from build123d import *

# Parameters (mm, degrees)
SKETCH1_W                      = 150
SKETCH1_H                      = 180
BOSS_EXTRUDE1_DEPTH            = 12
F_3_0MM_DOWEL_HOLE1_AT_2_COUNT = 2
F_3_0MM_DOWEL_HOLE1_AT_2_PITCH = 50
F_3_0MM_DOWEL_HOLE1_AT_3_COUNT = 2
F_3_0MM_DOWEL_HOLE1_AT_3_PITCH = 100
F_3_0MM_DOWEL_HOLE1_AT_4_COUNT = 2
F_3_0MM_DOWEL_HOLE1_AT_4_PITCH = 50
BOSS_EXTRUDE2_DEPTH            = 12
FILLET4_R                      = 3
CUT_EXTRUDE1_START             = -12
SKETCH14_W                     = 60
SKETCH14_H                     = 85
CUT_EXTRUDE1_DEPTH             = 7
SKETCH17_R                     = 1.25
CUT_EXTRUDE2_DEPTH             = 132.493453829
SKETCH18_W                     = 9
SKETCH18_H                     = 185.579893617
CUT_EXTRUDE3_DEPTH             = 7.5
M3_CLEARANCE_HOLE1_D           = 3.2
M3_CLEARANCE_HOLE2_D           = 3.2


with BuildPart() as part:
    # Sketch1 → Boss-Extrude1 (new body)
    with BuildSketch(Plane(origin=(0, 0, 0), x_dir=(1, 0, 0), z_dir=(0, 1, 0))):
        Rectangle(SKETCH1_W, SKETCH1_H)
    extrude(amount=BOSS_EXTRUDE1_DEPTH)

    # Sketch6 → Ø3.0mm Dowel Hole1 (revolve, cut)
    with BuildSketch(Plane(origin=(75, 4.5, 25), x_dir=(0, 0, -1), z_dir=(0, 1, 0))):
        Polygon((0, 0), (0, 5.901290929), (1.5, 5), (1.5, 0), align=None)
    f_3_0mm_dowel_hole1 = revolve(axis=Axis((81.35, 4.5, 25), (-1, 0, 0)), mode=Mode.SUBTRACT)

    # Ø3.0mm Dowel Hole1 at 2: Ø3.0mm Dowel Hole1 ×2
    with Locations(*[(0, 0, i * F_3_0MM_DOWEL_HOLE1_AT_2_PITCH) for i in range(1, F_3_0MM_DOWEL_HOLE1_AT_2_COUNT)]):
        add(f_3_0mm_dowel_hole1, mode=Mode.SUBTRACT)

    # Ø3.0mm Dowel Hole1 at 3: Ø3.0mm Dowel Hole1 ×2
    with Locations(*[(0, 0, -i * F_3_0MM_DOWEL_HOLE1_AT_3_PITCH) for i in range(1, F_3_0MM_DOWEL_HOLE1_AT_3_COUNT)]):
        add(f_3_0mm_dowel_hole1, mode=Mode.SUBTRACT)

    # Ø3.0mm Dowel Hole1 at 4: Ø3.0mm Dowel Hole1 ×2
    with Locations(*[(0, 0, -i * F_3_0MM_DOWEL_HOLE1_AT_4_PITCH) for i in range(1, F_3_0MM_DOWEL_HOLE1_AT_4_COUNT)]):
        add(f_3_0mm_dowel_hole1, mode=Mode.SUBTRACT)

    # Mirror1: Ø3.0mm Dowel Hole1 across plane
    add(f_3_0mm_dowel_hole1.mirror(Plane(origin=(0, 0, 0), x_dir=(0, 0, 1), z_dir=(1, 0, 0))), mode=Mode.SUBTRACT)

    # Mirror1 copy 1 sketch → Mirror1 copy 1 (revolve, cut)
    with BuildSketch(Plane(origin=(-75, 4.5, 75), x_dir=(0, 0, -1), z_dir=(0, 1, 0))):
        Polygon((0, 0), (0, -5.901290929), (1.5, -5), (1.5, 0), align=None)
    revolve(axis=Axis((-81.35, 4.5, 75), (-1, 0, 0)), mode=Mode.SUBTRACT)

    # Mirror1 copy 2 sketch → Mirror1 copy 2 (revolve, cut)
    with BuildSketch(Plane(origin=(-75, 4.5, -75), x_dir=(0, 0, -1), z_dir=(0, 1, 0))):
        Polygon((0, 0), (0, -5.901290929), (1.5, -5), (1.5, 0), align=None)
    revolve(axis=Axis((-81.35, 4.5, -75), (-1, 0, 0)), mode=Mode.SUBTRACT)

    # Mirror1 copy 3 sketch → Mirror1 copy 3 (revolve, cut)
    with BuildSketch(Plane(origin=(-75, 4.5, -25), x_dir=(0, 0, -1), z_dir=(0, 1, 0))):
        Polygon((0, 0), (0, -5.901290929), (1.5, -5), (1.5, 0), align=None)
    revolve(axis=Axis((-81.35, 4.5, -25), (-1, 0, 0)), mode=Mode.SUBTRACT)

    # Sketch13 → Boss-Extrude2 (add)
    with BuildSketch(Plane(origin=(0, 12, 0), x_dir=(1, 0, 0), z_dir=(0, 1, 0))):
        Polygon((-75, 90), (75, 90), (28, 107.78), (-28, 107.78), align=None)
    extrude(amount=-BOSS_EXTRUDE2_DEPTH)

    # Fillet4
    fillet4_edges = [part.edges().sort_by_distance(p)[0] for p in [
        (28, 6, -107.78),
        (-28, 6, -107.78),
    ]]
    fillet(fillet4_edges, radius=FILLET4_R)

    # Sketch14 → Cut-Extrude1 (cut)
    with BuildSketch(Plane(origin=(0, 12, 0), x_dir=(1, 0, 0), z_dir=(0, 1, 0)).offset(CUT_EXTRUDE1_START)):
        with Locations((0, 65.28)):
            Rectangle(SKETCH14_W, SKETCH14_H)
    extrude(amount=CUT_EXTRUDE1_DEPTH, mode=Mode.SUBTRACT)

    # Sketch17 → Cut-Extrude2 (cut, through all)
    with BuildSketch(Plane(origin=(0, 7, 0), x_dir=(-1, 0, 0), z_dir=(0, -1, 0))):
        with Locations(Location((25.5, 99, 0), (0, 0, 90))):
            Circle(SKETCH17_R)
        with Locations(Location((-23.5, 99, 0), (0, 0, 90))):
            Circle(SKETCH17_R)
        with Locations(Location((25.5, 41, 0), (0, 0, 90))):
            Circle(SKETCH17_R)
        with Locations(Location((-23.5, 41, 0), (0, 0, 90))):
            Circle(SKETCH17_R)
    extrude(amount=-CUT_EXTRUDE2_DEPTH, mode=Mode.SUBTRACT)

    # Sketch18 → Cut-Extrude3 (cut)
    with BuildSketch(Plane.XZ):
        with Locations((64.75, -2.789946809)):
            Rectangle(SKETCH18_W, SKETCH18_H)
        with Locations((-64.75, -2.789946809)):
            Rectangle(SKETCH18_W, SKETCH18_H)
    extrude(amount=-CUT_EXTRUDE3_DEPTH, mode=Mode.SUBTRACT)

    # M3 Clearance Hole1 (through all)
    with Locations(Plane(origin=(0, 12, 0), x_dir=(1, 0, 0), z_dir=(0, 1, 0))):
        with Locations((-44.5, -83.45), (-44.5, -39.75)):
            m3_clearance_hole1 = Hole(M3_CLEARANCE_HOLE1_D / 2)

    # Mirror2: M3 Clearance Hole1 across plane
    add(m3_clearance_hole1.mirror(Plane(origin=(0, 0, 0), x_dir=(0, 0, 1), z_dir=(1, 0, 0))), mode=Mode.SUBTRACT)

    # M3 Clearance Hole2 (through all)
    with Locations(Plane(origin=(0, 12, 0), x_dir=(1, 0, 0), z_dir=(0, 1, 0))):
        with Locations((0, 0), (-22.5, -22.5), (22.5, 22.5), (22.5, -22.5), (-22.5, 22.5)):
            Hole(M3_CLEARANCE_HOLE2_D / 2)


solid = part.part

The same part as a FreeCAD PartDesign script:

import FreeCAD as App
import Part
import Sketcher
from FreeCAD import Vector
Q = App.Units.Quantity


def edges_at(feature, points):
    """Names of the edges that pass closest to the given points."""
    edges = feature.Shape.Edges
    near = lambda p: min(range(len(edges)), key=lambda i: edges[i].distToShape(Part.Vertex(*p))[0])
    return sorted({f"Edge{near(p) + 1}" for p in points})


def add_polygon(sketch, points):
    """Adds a closed chain of lines whose ends are joined by coincident constraints."""
    first, n = sketch.GeometryCount, len(points)
    for a, b in zip(points, points[1:] + points[:1]):
        sketch.addGeometry(Part.LineSegment(App.Vector(*a, 0), App.Vector(*b, 0)), False)
    for i in range(n):
        sketch.addConstraint(Sketcher.Constraint("Coincident", first + i, 2, first + (i + 1) % n, 1))

doc = App.newDocument("Part")
body = doc.addObject("PartDesign::Body", "Body")

sketch1 = body.newObject("Sketcher::SketchObject", "Sketch")
sketch1.AttachmentSupport = (doc.getObject("XZ_Plane"), [""])
sketch1.MapMode = "FlatFace"
add_polygon(sketch1, [(-75, -90), (-75, 90), (75, 90), (75, -90)])
sketch1.addConstraint([
    Sketcher.Constraint("Vertical", 0),
    Sketcher.Constraint("Horizontal", 1),
    Sketcher.Constraint("Vertical", 2),
    Sketcher.Constraint("Horizontal", 3),
    Sketcher.Constraint("Symmetric", 0, 2, 2, 2, -1, 1),
    Sketcher.Constraint("DistanceX", 1, 1, 1, 2, 150.0),
    Sketcher.Constraint("DistanceY", 0, 1, 0, 2, 180.0),
])
pad1 = body.newObject("PartDesign::Pad", "Pad")
pad1.Profile = sketch1
pad1.Length = 12
pad1.Reversed = True

sketch2 = body.newObject("Sketcher::SketchObject", "Sketch001")
sketch2.AttachmentSupport = (doc.getObject("XZ_Plane"), [""])
sketch2.MapMode = "FlatFace"
sketch2.AttachmentOffset = App.Placement(Vector(0, 0, -4.5), App.Rotation())
add_polygon(sketch2, [(69.1, 25), (75, 25), (75, 23.5), (70, 23.5)])
sketch2.addGeometry(Part.LineSegment(Vector(75, 25, 0), Vector(69.1, 25, 0)), True)
sketch2.addConstraint([
    Sketcher.Constraint("Horizontal", 0),
    Sketcher.Constraint("Vertical", 1),
    Sketcher.Constraint("Horizontal", 2),
    Sketcher.Constraint("Horizontal", 4),
    Sketcher.Constraint("Coincident", 4, 1, 0, 2),
    Sketcher.Constraint("Equal", 0, 4),
    Sketcher.Constraint("DistanceX", 2, 2, 2, 1, 5.0),
    Sketcher.Constraint("Angle", 3, Q("121 deg")),
    Sketcher.Constraint("DistanceY", 1, 2, 1, 1, 1.5),
    Sketcher.Constraint("DistanceX", -1, 1, 0, 2, 75.0),
    Sketcher.Constraint("DistanceY", -1, 1, 0, 2, 25.0),
])
groove = body.newObject("PartDesign::Groove", "Groove")
groove.Profile = sketch2
groove.ReferenceAxis = (sketch2, ["Axis0"])
groove.Angle = 360
doc.recompute()

linearpattern = body.newObject("PartDesign::LinearPattern", "LinearPattern")
linearpattern.Originals = [groove]
linearpattern.Direction = (doc.getObject("Z_Axis"), [""])
linearpattern.Mode = "offset"
linearpattern.Offset = 50
linearpattern.Occurrences = 2
body.Tip = linearpattern
doc.recompute()

linearpattern2 = body.newObject("PartDesign::LinearPattern", "LinearPattern001")
linearpattern2.Originals = [groove]
linearpattern2.Direction = (doc.getObject("Z_Axis"), [""])
linearpattern2.Mode = "offset"
linearpattern2.Offset = 100
linearpattern2.Occurrences = 2
linearpattern2.Reversed = True
body.Tip = linearpattern2
doc.recompute()

linearpattern3 = body.newObject("PartDesign::LinearPattern", "LinearPattern002")
linearpattern3.Originals = [groove]
linearpattern3.Direction = (doc.getObject("Z_Axis"), [""])
linearpattern3.Mode = "offset"
linearpattern3.Offset = 50
linearpattern3.Occurrences = 2
linearpattern3.Reversed = True
body.Tip = linearpattern3
doc.recompute()

mirrored = body.newObject("PartDesign::Mirrored", "Mirrored")
mirrored.Originals = [groove]
mirrored.MirrorPlane = (doc.getObject("YZ_Plane"), [""])
body.Tip = mirrored

sketch3 = body.newObject("Sketcher::SketchObject", "Sketch002")
sketch3.AttachmentSupport = (doc.getObject("XZ_Plane"), [""])
sketch3.MapMode = "FlatFace"
sketch3.AttachmentOffset = App.Placement(Vector(0, 0, -4.5), App.Rotation())
add_polygon(sketch3, [(-75, 75), (-69.1, 75), (-70, 73.5), (-75, 73.5)])
sketch3.addGeometry(Part.LineSegment(Vector(-69.1, 75, 0), Vector(-75, 75, 0)), True)
sketch3.addConstraint([
    Sketcher.Constraint("Horizontal", 0),
    Sketcher.Constraint("Horizontal", 2),
    Sketcher.Constraint("Vertical", 3),
    Sketcher.Constraint("Horizontal", 4),
    Sketcher.Constraint("Coincident", 4, 1, 0, 2),
    Sketcher.Constraint("Vertical", 2, 2, 4, 2),
    Sketcher.Constraint("DistanceX", 2, 2, 2, 1, 5.0),
    Sketcher.Constraint("Angle", 1, Q("-121 deg")),
    Sketcher.Constraint("DistanceY", 3, 1, 3, 2, 1.5),
    Sketcher.Constraint("DistanceY", -1, 1, 0, 2, 75.0),
    Sketcher.Constraint("DistanceX", 1, 2, -1, 1, 70.0),
])
groove2 = body.newObject("PartDesign::Groove", "Groove001")
groove2.Profile = sketch3
groove2.ReferenceAxis = (sketch3, ["Axis0"])
groove2.Angle = 360

sketch4 = body.newObject("Sketcher::SketchObject", "Sketch003")
sketch4.AttachmentSupport = (doc.getObject("XZ_Plane"), [""])
sketch4.MapMode = "FlatFace"
sketch4.AttachmentOffset = App.Placement(Vector(0, 0, -4.5), App.Rotation())
add_polygon(sketch4, [(-75, -75), (-69.1, -75), (-70, -76.5), (-75, -76.5)])
sketch4.addGeometry(Part.LineSegment(Vector(-69.1, -75, 0), Vector(-75, -75, 0)), True)
sketch4.addConstraint([
    Sketcher.Constraint("Horizontal", 0),
    Sketcher.Constraint("Horizontal", 2),
    Sketcher.Constraint("Vertical", 3),
    Sketcher.Constraint("Horizontal", 4),
    Sketcher.Constraint("Coincident", 4, 1, 0, 2),
    Sketcher.Constraint("Vertical", 2, 2, 4, 2),
    Sketcher.Constraint("DistanceX", 2, 2, 2, 1, 5.0),
    Sketcher.Constraint("Angle", 1, Q("-121 deg")),
    Sketcher.Constraint("DistanceY", 3, 1, 3, 2, 1.5),
    Sketcher.Constraint("DistanceY", 0, 2, -1, 1, 75.0),
    Sketcher.Constraint("DistanceX", 1, 2, -1, 1, 70.0),
])
groove3 = body.newObject("PartDesign::Groove", "Groove002")
groove3.Profile = sketch4
groove3.ReferenceAxis = (sketch4, ["Axis0"])
groove3.Angle = 360

sketch5 = body.newObject("Sketcher::SketchObject", "Sketch004")
sketch5.AttachmentSupport = (doc.getObject("XZ_Plane"), [""])
sketch5.MapMode = "FlatFace"
sketch5.AttachmentOffset = App.Placement(Vector(0, 0, -4.5), App.Rotation())
add_polygon(sketch5, [(-75, -25), (-69.1, -25), (-70, -26.5), (-75, -26.5)])
sketch5.addGeometry(Part.LineSegment(Vector(-69.1, -25, 0), Vector(-75, -25, 0)), True)
sketch5.addConstraint([
    Sketcher.Constraint("Horizontal", 0),
    Sketcher.Constraint("Horizontal", 2),
    Sketcher.Constraint("Vertical", 3),
    Sketcher.Constraint("Horizontal", 4),
    Sketcher.Constraint("Coincident", 4, 1, 0, 2),
    Sketcher.Constraint("Vertical", 2, 2, 4, 2),
    Sketcher.Constraint("DistanceX", 2, 2, 2, 1, 5.0),
    Sketcher.Constraint("Angle", 1, Q("-121 deg")),
    Sketcher.Constraint("DistanceY", 3, 1, 3, 2, 1.5),
    Sketcher.Constraint("DistanceY", 0, 2, -1, 1, 25.0),
    Sketcher.Constraint("DistanceX", 1, 2, -1, 1, 70.0),
])
groove4 = body.newObject("PartDesign::Groove", "Groove003")
groove4.Profile = sketch5
groove4.ReferenceAxis = (sketch5, ["Axis0"])
groove4.Angle = 360

sketch6 = body.newObject("Sketcher::SketchObject", "Sketch005")
sketch6.AttachmentSupport = (doc.getObject("XZ_Plane"), [""])
sketch6.MapMode = "FlatFace"
sketch6.AttachmentOffset = App.Placement(Vector(0, 0, -12), App.Rotation())
add_polygon(sketch6, [(-75, -90), (75, -90), (28, -108), (-28, -108)])
sketch6.addConstraint([
    Sketcher.Constraint("Horizontal", 0),
    Sketcher.Constraint("Horizontal", 2),
    Sketcher.Constraint("Equal", 1, 3),
    Sketcher.Constraint("DistanceX", 0, 1, 0, 2, 150.0),
    Sketcher.Constraint("DistanceX", 2, 2, 2, 1, 56.0),
    Sketcher.Constraint("DistanceX", -1, 1, 0, 2, 75.0),
    Sketcher.Constraint("DistanceY", 0, 2, -1, 1, 90.0),
    Sketcher.Constraint("DistanceY", 1, 2, -1, 1, 107.78),
])
pad2 = body.newObject("PartDesign::Pad", "Pad001")
pad2.Profile = sketch6
pad2.Length = 12
doc.recompute()

fillet = body.newObject("PartDesign::Fillet", "Fillet")
fillet.Base = (pad2, edges_at(pad2, [(28, 6, -107.78), (-28, 6, -107.78)]))
fillet.Radius = 3

sketch7 = body.newObject("Sketcher::SketchObject", "Sketch006")
sketch7.AttachmentSupport = (doc.getObject("XZ_Plane"), [""])
sketch7.MapMode = "FlatFace"
add_polygon(sketch7, [(-30, -108), (-30, -23), (30, -23), (30, -108)])
sketch7.addConstraint([
    Sketcher.Constraint("Vertical", 0),
    Sketcher.Constraint("Horizontal", 1),
    Sketcher.Constraint("Vertical", 2),
    Sketcher.Constraint("Horizontal", 3),
    Sketcher.Constraint("DistanceX", 1, 1, 1, 2, 60.0),
    Sketcher.Constraint("DistanceY", 0, 1, 0, 2, 85.0),
    Sketcher.Constraint("DistanceX", 0, 2, -1, 1, 30.0),
    Sketcher.Constraint("DistanceY", 0, 2, -1, 1, 22.78),
])
pocket1 = body.newObject("PartDesign::Pocket", "Pocket")
pocket1.Profile = sketch7
pocket1.Length = 7

sketch8 = body.newObject("Sketcher::SketchObject", "Sketch007")
sketch8.AttachmentSupport = (doc.getObject("XZ_Plane"), [""])
sketch8.MapMode = "FlatFace"
sketch8.AttachmentOffset = App.Placement(Vector(0, 0, -7), App.Rotation())
sketch8.addGeometry([
    Part.Circle(Vector(-25.5, -99, 0), Vector(0, 0, 1), 1.2),
    Part.Circle(Vector(23.5, -99, 0), Vector(0, 0, 1), 1.2),
    Part.Circle(Vector(-25.5, -41, 0), Vector(0, 0, 1), 1.2),
    Part.Circle(Vector(23.5, -41, 0), Vector(0, 0, 1), 1.2),
], False)
sketch8.addConstraint([
    Sketcher.Constraint("Equal", 0, 1),
    Sketcher.Constraint("Equal", 1, 2),
    Sketcher.Constraint("Equal", 2, 3),
    Sketcher.Constraint("Horizontal", 0, 3, 1, 3),
    Sketcher.Constraint("Horizontal", 2, 3, 3, 3),
    Sketcher.Constraint("Vertical", 0, 3, 2, 3),
    Sketcher.Constraint("Vertical", 1, 3, 3, 3),
    Sketcher.Constraint("Diameter", 0, 2.5),
    Sketcher.Constraint("DistanceY", 0, 3, -1, 1, 99.0),
    Sketcher.Constraint("DistanceY", 2, 3, -1, 1, 41.0),
    Sketcher.Constraint("DistanceX", 0, 3, 1, 3, 49.0),
    Sketcher.Constraint("DistanceX", 0, 3, -1, 1, 25.5),
])
pocket2 = body.newObject("PartDesign::Pocket", "Pocket001")
pocket2.Profile = sketch8
pocket2.Type = "ThroughAll"

sketch9 = body.newObject("Sketcher::SketchObject", "Sketch008")
sketch9.AttachmentSupport = (doc.getObject("XZ_Plane"), [""])
sketch9.MapMode = "FlatFace"
add_polygon(sketch9, [(60, 90), (60, -96), (69, -96), (69, 90)])
add_polygon(sketch9, [(-69, 90), (-69, -96), (-60, -96), (-60, 90)])
sketch9.addConstraint([
    Sketcher.Constraint("Vertical", 0),
    Sketcher.Constraint("Horizontal", 1),
    Sketcher.Constraint("Vertical", 2),
    Sketcher.Constraint("Horizontal", 3),
    Sketcher.Constraint("Vertical", 4),
    Sketcher.Constraint("Horizontal", 5),
    Sketcher.Constraint("Vertical", 6),
    Sketcher.Constraint("Horizontal", 7),
    Sketcher.Constraint("Symmetric", 1, 2, 4, 2, -2),
    Sketcher.Constraint("Symmetric", 3, 2, 6, 2, -2),
    Sketcher.Constraint("DistanceX", 1, 1, 1, 2, 9.0),
    Sketcher.Constraint("DistanceY", -1, 1, 2, 2, 90.0),
    Sketcher.Constraint("DistanceX", 4, 2, 0, 2, 129.5),
    Sketcher.Constraint("DistanceY", 0, 2, 0, 1, 185.579894),
])
pocket3 = body.newObject("PartDesign::Pocket", "Pocket002")
pocket3.Profile = sketch9
pocket3.Length = 7.5

sketch10 = body.newObject("Sketcher::SketchObject", "Sketch009")
sketch10.AttachmentSupport = (doc.getObject("XZ_Plane"), [""])
sketch10.MapMode = "FlatFace"
sketch10.AttachmentOffset = App.Placement(Vector(0, 0, -12), App.Rotation())
sketch10.addGeometry([
    Part.Circle(Vector(-44.5, 83.5, 0), Vector(0, 0, 1), 1.6),
    Part.Circle(Vector(-44.5, 39.8, 0), Vector(0, 0, 1), 1.6),
], False)
sketch10.addConstraint([
    Sketcher.Constraint("Equal", 0, 1),
    Sketcher.Constraint("Vertical", 0, 3, 1, 3),
    Sketcher.Constraint("Diameter", 0, 3.2),
    Sketcher.Constraint("DistanceX", 0, 3, -1, 1, 44.5),
    Sketcher.Constraint("DistanceY", 1, 3, 0, 3, 43.7),
    Sketcher.Constraint("DistanceY", -1, 1, 0, 3, 83.45),
])
doc.recompute()
hole = body.newObject("PartDesign::Hole", "Hole")
hole.Profile = sketch10
hole.ThreadType = "None"
hole.Diameter = 3.2
hole.DepthType = "ThroughAll"
hole.Reversed = True
doc.recompute()

mirrored2 = body.newObject("PartDesign::Mirrored", "Mirrored001")
mirrored2.Originals = [hole]
mirrored2.MirrorPlane = (doc.getObject("YZ_Plane"), [""])
body.Tip = mirrored2

sketch11 = body.newObject("Sketcher::SketchObject", "Sketch010")
sketch11.AttachmentSupport = (doc.getObject("XZ_Plane"), [""])
sketch11.MapMode = "FlatFace"
sketch11.AttachmentOffset = App.Placement(Vector(0, 0, -12), App.Rotation())
sketch11.addGeometry([
    Part.Circle(Vector(0, 0, 0), Vector(0, 0, 1), 1.6),
    Part.Circle(Vector(-22.5, 22.5, 0), Vector(0, 0, 1), 1.6),
    Part.Circle(Vector(22.5, -22.5, 0), Vector(0, 0, 1), 1.6),
    Part.Circle(Vector(22.5, 22.5, 0), Vector(0, 0, 1), 1.6),
    Part.Circle(Vector(-22.5, -22.5, 0), Vector(0, 0, 1), 1.6),
], False)
sketch11.addConstraint([
    Sketcher.Constraint("Coincident", 0, 3, -1, 1),
    Sketcher.Constraint("Equal", 0, 1),
    Sketcher.Constraint("Equal", 1, 2),
    Sketcher.Constraint("Equal", 2, 3),
    Sketcher.Constraint("Equal", 3, 4),
    Sketcher.Constraint("Symmetric", 1, 3, 2, 3, -1, 1),
    Sketcher.Constraint("Symmetric", 3, 3, 4, 3, -1, 1),
    Sketcher.Constraint("Symmetric", 1, 3, 3, 3, -2),
    Sketcher.Constraint("Diameter", 0, 3.2),
    Sketcher.Constraint("DistanceX", 1, 3, 2, 3, 45.0),
    Sketcher.Constraint("DistanceY", 2, 3, 1, 3, 45.0),
])
doc.recompute()
hole2 = body.newObject("PartDesign::Hole", "Hole001")
hole2.Profile = sketch11
hole2.ThreadType = "None"
hole2.Diameter = 3.2
hole2.DepthType = "ThroughAll"
hole2.Reversed = True

doc.recompute()
